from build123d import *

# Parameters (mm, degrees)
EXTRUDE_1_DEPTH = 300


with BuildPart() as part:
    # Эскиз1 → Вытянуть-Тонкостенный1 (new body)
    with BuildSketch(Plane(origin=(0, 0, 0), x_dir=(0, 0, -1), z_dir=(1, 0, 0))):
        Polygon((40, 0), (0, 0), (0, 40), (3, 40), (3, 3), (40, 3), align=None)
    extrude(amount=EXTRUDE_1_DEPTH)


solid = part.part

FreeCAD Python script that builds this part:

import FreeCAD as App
import Part
import Sketcher


def add_polygon(sketch, points):
    """Adds a closed chain of lines whose ends are joined by coincident constraints."""
    first, n = sketch.GeometryCount, len(points)
    for a, b in zip(points, points[1:] + points[:1]):
        sketch.addGeometry(Part.LineSegment(App.Vector(*a, 0), App.Vector(*b, 0)), False)
    for i in range(n):
        sketch.addConstraint(Sketcher.Constraint("Coincident", first + i, 2, first + (i + 1) % n, 1))

doc = App.newDocument("Part")
body = doc.addObject("PartDesign::Body", "Body")

sketch1 = body.newObject("Sketcher::SketchObject", "Sketch")
sketch1.AttachmentSupport = (doc.getObject("YZ_Plane"), [""])
sketch1.MapMode = "FlatFace"
add_polygon(sketch1, [(0, 0), (0, -40), (3, -40), (3, -3), (40, -3), (40, 0)])
sketch1.addConstraint([
    Sketcher.Constraint("Vertical", 0),
    Sketcher.Constraint("Horizontal", 1),
    Sketcher.Constraint("Vertical", 2),
    Sketcher.Constraint("Horizontal", 3),
    Sketcher.Constraint("Vertical", 4),
    Sketcher.Constraint("Horizontal", 5),
    Sketcher.Constraint("Coincident", 5, 2, -1, 1),
    Sketcher.Constraint("Equal", 5, 0),
    Sketcher.Constraint("Equal", 3, 2),
    Sketcher.Constraint("DistanceX", 1, 1, 1, 2, 3.0),
    Sketcher.Constraint("DistanceX", 3, 1, 3, 2, 37.0),
])
pad1 = body.newObject("PartDesign::Pad", "Pad")
pad1.Profile = sketch1
pad1.Length = 300

doc.recompute()
